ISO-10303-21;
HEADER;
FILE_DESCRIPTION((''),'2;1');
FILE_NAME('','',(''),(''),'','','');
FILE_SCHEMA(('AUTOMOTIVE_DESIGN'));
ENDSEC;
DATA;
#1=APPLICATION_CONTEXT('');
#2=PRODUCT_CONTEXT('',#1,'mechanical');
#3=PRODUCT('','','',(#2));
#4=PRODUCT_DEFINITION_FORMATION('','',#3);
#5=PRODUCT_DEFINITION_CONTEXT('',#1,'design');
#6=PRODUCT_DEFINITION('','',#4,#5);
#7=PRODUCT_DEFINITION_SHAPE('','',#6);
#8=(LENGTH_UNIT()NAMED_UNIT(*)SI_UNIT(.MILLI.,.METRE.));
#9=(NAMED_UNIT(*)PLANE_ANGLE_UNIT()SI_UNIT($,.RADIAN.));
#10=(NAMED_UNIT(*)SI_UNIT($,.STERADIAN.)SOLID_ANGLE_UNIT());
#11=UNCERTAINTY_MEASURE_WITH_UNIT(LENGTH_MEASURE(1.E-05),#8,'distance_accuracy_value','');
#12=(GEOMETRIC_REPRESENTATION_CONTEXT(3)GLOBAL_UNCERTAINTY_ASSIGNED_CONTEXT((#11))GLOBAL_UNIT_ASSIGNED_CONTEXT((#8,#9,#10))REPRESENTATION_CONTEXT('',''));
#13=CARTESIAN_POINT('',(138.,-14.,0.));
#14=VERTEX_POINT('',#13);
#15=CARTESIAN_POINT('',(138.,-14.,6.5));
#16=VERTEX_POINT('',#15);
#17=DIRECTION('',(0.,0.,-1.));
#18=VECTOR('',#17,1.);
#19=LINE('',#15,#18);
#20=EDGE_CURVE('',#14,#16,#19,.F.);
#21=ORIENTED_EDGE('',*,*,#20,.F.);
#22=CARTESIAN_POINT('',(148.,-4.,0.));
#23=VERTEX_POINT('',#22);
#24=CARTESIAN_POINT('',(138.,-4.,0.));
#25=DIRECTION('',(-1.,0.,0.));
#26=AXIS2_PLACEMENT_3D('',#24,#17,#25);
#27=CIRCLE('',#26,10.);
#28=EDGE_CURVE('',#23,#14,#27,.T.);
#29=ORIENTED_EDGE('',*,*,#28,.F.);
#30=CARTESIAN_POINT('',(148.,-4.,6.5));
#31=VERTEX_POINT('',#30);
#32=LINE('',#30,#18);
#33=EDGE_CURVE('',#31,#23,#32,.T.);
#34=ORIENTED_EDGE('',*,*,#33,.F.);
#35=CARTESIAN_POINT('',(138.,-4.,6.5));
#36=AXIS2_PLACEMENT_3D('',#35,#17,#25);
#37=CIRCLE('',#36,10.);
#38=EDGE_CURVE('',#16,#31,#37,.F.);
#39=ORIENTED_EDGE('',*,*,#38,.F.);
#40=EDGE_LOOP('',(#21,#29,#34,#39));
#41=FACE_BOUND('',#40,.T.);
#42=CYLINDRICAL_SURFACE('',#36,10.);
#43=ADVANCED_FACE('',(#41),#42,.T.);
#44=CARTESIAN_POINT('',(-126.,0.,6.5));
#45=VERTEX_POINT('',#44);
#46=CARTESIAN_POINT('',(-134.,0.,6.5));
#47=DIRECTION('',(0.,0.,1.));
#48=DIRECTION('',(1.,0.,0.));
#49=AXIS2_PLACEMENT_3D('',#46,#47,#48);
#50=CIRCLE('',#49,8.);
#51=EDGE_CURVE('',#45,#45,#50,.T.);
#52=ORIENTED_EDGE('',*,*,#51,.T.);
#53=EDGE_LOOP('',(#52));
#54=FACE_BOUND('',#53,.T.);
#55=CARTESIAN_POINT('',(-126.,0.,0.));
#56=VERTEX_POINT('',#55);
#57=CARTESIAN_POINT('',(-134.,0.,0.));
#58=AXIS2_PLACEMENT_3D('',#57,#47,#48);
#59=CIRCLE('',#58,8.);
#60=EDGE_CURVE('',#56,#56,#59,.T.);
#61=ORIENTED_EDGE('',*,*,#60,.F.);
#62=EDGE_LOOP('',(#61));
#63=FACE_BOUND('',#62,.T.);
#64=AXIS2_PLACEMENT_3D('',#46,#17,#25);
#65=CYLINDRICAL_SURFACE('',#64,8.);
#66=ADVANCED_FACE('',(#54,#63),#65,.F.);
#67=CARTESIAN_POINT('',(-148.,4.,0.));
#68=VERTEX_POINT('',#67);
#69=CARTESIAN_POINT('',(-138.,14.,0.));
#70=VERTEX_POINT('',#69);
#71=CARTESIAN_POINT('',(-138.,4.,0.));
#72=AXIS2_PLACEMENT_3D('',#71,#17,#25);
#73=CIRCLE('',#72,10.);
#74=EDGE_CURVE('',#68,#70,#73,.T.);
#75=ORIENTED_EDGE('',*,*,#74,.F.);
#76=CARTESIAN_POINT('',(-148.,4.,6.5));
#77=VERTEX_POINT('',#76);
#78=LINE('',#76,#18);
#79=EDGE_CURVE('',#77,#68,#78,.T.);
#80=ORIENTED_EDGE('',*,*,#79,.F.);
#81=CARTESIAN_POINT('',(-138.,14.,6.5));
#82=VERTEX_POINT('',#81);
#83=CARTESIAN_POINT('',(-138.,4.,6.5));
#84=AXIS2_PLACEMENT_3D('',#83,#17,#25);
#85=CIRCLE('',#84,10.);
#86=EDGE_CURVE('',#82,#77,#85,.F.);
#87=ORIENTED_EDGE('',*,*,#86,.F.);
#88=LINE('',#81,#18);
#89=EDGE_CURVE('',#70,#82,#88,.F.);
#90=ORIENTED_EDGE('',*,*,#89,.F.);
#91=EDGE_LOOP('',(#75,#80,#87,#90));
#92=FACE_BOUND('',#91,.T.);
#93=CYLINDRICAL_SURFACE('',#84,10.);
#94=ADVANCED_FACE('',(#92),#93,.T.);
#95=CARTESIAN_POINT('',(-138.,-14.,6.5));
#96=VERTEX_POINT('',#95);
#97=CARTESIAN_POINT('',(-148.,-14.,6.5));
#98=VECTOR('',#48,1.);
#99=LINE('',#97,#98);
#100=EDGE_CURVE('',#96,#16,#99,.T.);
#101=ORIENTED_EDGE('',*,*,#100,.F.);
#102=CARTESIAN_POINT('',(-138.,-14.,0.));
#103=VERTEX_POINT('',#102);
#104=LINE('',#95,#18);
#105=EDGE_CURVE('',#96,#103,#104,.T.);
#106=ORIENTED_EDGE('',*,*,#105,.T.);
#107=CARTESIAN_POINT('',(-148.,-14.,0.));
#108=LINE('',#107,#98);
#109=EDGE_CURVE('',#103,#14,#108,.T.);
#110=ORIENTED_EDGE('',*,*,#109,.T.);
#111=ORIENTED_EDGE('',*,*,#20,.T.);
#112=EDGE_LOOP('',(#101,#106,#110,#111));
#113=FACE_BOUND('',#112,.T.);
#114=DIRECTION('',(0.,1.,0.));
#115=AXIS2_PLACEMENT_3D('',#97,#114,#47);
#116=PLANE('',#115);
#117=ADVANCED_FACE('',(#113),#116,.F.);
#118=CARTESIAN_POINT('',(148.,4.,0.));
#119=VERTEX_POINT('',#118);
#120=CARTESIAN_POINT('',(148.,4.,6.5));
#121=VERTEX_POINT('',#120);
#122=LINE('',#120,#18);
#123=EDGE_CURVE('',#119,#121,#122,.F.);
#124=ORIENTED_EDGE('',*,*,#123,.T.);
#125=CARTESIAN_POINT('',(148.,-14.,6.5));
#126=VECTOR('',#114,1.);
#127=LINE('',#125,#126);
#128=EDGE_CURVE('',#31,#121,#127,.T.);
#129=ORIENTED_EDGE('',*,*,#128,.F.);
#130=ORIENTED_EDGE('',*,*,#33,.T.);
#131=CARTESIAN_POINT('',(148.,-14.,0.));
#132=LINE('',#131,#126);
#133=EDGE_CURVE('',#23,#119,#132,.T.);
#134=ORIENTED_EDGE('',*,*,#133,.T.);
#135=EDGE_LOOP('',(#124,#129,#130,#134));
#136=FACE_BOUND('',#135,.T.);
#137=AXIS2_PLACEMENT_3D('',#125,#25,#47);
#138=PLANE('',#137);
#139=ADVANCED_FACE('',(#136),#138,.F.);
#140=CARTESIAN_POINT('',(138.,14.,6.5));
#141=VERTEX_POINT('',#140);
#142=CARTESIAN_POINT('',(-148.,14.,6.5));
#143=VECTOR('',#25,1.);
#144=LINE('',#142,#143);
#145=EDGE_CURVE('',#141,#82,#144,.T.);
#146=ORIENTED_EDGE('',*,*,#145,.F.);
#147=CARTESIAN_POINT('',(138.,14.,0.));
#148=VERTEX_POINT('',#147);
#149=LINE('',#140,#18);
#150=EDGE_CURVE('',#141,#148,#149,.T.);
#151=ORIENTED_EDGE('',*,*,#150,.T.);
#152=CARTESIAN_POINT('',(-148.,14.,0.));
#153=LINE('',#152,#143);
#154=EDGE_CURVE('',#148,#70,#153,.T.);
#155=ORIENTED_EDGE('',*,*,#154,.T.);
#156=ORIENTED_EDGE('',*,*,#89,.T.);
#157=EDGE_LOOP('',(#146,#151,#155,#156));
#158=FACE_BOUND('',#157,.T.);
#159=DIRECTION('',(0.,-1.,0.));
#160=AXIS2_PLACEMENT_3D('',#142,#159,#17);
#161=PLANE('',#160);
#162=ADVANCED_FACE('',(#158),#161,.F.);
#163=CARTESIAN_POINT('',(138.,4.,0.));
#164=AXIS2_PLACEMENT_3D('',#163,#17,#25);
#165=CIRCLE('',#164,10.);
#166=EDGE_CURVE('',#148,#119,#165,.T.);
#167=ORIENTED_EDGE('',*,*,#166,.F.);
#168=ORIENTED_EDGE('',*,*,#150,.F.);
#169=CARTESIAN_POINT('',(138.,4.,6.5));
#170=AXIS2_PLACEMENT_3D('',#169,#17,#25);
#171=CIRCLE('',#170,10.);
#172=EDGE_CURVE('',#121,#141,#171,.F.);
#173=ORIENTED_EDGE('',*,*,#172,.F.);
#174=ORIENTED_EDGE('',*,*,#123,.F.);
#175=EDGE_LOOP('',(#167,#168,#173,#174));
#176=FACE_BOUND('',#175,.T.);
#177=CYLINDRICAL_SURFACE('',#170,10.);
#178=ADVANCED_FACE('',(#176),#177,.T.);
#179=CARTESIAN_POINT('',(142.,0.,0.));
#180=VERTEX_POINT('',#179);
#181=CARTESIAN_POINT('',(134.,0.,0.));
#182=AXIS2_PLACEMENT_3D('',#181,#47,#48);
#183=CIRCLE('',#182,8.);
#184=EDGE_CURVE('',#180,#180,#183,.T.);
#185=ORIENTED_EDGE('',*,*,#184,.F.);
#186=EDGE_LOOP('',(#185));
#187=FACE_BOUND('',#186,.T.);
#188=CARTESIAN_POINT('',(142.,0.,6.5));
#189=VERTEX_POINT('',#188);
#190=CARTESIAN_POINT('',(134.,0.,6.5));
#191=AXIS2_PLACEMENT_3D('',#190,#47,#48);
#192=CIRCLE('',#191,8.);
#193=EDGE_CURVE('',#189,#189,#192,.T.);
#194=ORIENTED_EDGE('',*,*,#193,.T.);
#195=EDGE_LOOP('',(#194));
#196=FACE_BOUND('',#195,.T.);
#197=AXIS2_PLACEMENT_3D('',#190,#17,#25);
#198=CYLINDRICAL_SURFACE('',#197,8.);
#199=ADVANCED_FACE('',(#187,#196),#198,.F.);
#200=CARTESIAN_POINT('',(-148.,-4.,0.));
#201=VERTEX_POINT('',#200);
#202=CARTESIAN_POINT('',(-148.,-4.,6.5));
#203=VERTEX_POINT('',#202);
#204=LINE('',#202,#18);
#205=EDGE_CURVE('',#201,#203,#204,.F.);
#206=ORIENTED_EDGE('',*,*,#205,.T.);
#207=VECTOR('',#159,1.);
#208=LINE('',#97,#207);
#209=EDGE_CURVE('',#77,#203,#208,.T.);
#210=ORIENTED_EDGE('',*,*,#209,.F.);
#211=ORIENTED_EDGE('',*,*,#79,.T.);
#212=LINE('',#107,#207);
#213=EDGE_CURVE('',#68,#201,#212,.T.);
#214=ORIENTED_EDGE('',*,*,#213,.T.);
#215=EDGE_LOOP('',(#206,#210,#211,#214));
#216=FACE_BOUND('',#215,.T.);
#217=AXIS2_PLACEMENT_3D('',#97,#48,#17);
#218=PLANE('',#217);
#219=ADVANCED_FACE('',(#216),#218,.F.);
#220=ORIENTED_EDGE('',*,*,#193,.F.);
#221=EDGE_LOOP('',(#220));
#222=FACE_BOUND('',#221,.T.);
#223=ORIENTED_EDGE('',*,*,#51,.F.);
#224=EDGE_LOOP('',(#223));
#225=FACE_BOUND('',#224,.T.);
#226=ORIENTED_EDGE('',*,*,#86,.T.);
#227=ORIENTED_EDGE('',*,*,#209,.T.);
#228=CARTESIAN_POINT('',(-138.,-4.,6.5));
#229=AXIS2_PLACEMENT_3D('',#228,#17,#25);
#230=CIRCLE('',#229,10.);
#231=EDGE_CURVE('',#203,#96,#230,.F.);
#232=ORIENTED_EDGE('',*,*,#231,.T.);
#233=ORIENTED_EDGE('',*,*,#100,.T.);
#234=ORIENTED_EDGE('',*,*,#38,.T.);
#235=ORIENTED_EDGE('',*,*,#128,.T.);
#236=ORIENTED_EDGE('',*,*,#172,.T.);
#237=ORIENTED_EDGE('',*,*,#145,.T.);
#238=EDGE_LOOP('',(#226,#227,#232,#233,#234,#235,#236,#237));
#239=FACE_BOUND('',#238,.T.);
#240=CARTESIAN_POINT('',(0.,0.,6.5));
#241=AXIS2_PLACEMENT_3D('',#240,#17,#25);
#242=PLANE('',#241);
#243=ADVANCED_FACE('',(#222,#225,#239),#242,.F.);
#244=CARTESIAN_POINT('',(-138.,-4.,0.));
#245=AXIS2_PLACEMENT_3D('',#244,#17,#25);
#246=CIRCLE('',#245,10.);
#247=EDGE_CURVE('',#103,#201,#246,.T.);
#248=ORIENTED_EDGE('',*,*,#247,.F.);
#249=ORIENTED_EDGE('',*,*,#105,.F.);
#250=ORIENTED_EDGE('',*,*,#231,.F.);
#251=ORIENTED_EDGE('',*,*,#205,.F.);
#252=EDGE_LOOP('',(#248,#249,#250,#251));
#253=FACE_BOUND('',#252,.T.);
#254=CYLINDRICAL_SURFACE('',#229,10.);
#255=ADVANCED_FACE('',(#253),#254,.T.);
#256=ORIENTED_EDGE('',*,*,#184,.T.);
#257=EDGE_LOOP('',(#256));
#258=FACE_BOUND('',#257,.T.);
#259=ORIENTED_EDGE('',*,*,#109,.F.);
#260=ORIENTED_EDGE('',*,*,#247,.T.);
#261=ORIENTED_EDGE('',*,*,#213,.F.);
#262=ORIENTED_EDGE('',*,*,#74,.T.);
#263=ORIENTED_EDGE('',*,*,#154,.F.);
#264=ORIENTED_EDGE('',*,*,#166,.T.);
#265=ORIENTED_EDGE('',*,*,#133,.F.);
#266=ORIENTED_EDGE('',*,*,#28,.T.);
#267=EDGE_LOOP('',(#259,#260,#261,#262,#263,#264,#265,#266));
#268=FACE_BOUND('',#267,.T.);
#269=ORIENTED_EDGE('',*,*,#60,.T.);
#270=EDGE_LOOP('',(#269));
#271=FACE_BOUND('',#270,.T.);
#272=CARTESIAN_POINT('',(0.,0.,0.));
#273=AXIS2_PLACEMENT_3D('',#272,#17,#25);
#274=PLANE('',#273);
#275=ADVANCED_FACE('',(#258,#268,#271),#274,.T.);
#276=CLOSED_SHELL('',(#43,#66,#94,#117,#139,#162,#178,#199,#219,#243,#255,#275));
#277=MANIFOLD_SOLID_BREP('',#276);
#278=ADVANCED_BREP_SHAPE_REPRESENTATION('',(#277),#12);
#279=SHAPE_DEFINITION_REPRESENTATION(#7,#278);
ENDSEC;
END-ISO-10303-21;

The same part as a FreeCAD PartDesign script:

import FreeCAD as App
import Part
import Sketcher
from FreeCAD import Vector
Q = App.Units.Quantity


def edges_at(feature, points):
    """Names of the edges that pass closest to the given points."""
    edges = feature.Shape.Edges
    near = lambda p: min(range(len(edges)), key=lambda i: edges[i].distToShape(Part.Vertex(*p))[0])
    return sorted({f"Edge{near(p) + 1}" for p in points})

doc = App.newDocument("Part")
body = doc.addObject("PartDesign::Body", "Body")

sketch1 = body.newObject("Sketcher::SketchObject", "Sketch")
sketch1.AttachmentSupport = (doc.getObject("XY_Plane"), [""])
sketch1.MapMode = "FlatFace"
sketch1.addGeometry([
    Part.LineSegment(Vector(-148, 14, 0), Vector(-148, -14, 0)),
    Part.LineSegment(Vector(-148, -14, 0), Vector(148, -14, 0)),
    Part.LineSegment(Vector(148, -14, 0), Vector(148, 14, 0)),
    Part.LineSegment(Vector(148, 14, 0), Vector(-148, 14, 0)),
    Part.Circle(Vector(-134, 0, 0), Vector(0, 0, 1), 8),
    Part.Circle(Vector(134, 0, 0), Vector(0, 0, 1), 8),
], False)
sketch1.addConstraint([
    Sketcher.Constraint("Coincident", 0, 2, 1, 1),
    Sketcher.Constraint("Coincident", 1, 2, 2, 1),
    Sketcher.Constraint("Coincident", 2, 2, 3, 1),
    Sketcher.Constraint("Coincident", 3, 2, 0, 1),
    Sketcher.Constraint("Vertical", 0),
    Sketcher.Constraint("Horizontal", 1),
    Sketcher.Constraint("Vertical", 2),
    Sketcher.Constraint("Horizontal", 3),
    Sketcher.Constraint("Equal", 4, 5),
    Sketcher.Constraint("Symmetric", 4, 3, 5, 3, -1, 1),
    Sketcher.Constraint("Symmetric", 0, 2, 2, 2, -1, 1),
    Sketcher.Constraint("PointOnObject", 4, 3, -1),
    Sketcher.Constraint("Diameter", 4, Q("16 mm")),
    Sketcher.Constraint("DistanceX", 1, 1, 1, 2, Q("296 mm")),
    Sketcher.Constraint("DistanceY", 0, 2, 0, 1, Q("28 mm")),
    Sketcher.Constraint("DistanceX", 4, 3, -1, 1, Q("134 mm")),
])
pad1 = body.newObject("PartDesign::Pad", "Pad")
pad1.Profile = sketch1
pad1.Length = 6.5
doc.recompute()

fillet = body.newObject("PartDesign::Fillet", "Fillet")
fillet.Base = (pad1, edges_at(pad1, [
    (148, -14, 3.25),
    (-148, -14, 3.25),
    (-148, 14, 3.25),
    (148, 14, 3.25),
]))
fillet.Radius = 10

doc.recompute()
